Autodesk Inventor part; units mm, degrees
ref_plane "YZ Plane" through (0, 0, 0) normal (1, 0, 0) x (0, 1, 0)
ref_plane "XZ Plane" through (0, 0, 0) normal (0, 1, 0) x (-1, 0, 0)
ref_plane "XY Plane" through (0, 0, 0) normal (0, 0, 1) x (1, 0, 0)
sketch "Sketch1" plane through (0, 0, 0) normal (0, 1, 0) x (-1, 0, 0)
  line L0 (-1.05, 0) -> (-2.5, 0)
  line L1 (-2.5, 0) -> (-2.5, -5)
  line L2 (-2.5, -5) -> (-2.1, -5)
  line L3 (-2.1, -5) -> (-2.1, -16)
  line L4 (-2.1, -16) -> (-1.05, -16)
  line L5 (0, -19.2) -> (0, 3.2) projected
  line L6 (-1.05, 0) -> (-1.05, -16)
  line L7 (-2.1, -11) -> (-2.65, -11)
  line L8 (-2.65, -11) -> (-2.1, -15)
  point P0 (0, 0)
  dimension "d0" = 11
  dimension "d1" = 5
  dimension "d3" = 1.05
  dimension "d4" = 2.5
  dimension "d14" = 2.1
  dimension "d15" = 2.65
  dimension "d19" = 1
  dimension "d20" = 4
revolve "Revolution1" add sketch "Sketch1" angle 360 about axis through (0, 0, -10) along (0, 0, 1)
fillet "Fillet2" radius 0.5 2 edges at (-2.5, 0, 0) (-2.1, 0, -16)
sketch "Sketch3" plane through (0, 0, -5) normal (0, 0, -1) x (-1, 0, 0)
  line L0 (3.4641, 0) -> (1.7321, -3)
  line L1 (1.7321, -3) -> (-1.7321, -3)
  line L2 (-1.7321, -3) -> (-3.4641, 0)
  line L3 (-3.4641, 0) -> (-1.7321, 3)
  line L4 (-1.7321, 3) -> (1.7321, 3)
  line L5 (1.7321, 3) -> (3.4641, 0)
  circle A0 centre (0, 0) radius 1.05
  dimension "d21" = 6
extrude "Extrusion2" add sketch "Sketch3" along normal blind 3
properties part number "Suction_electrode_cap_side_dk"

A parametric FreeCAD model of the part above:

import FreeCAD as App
import Part
import Sketcher
from FreeCAD import Vector
Q = App.Units.Quantity


def edges_at(feature, points):
    """Names of the edges that pass closest to the given points."""
    edges = feature.Shape.Edges
    near = lambda p: min(range(len(edges)), key=lambda i: edges[i].distToShape(Part.Vertex(*p))[0])
    return sorted({f"Edge{near(p) + 1}" for p in points})

doc = App.newDocument("Part")
params = doc.addObject("Spreadsheet::Sheet", "Params")
for row, (alias, value) in enumerate([
    ("sketch1_height", "5 mm"),
    ("sketch1_height2", "1 mm"),
    ("sketch1_width", "1.05 mm"),
    ("revolution_angle", "360 deg"),
    ("fillet_radius", "0.5 mm"),
    ("sketch2_diameter", "2.1 mm"),
    ("pad1_length", "3 mm"),
], start=1):
    params.set(f"A{row}", alias)
    params.set(f"B{row}", "=" + value)
    params.setAlias(f"B{row}", alias)

body = doc.addObject("PartDesign::Body", "Body")

# Sketch on XZ plane
sketch1 = body.newObject("Sketcher::SketchObject", "Sketch")
sketch1.AttachmentSupport = (doc.getObject("XZ_Plane"), [""])
sketch1.MapMode = "FlatFace"
sketch1.addGeometry([
    Part.LineSegment(Vector(1.05, -16, 0), Vector(1.05, 0, 0)),  # 0
    Part.LineSegment(Vector(1.05, 0, 0), Vector(2.5, 0, 0)),  # 1
    Part.LineSegment(Vector(2.5, 0, 0), Vector(2.5, -5, 0)),  # 2
    Part.LineSegment(Vector(2.5, -5, 0), Vector(2.1, -5, 0)),  # 3
    Part.LineSegment(Vector(2.1, -5, 0), Vector(2.1, -11, 0)),  # 4
    Part.LineSegment(Vector(2.1, -11, 0), Vector(2.65, -11, 0)),  # 5
    Part.LineSegment(Vector(2.65, -11, 0), Vector(2.1, -15, 0)),  # 6
    Part.LineSegment(Vector(2.1, -15, 0), Vector(2.1, -16, 0)),  # 7
    Part.LineSegment(Vector(2.1, -16, 0), Vector(1.05, -16, 0)),  # 8
], False)
sketch1.addConstraint([
    Sketcher.Constraint("Coincident", 0, 2, 1, 1),
    Sketcher.Constraint("Coincident", 1, 2, 2, 1),
    Sketcher.Constraint("Coincident", 2, 2, 3, 1),
    Sketcher.Constraint("Coincident", 3, 2, 4, 1),
    Sketcher.Constraint("Coincident", 4, 2, 5, 1),
    Sketcher.Constraint("Coincident", 5, 2, 6, 1),
    Sketcher.Constraint("Coincident", 6, 2, 7, 1),
    Sketcher.Constraint("Coincident", 7, 2, 8, 1),
    Sketcher.Constraint("Coincident", 8, 2, 0, 1),
    Sketcher.Constraint("Vertical", 0),
    Sketcher.Constraint("Horizontal", 1),
    Sketcher.Constraint("Vertical", 2),
    Sketcher.Constraint("Horizontal", 3),
    Sketcher.Constraint("Vertical", 4),
    Sketcher.Constraint("Horizontal", 5),
    Sketcher.Constraint("Vertical", 7),
    Sketcher.Constraint("Horizontal", 8),
    Sketcher.Constraint("PointOnObject", 0, 2, -1),
    Sketcher.Constraint("Vertical", 4, 2, 6, 2),
    Sketcher.Constraint("DistanceY", 2, 2, 2, 1, 5.0),
    Sketcher.Constraint("DistanceY", 7, 2, 7, 1, 1.0),
    Sketcher.Constraint("DistanceY", 4, 2, -1, 1, 11.0),
    Sketcher.Constraint("DistanceY", 6, 2, 4, 2, 4.0),
    Sketcher.Constraint("DistanceX", 8, 2, 8, 1, 1.05),
    Sketcher.Constraint("DistanceX", -1, 1, 1, 2, 2.5),
    Sketcher.Constraint("DistanceX", -1, 1, 3, 2, 2.1),
    Sketcher.Constraint("DistanceX", -1, 1, 5, 2, 2.65),
])
sketch1.setExpression("Constraints[19]", "Params.sketch1_height")
sketch1.setExpression("Constraints[20]", "Params.sketch1_height2")
sketch1.setExpression("Constraints[23]", "Params.sketch1_width")
revolution = body.newObject("PartDesign::Revolution", "Revolution")
revolution.Profile = sketch1
revolution.ReferenceAxis = (sketch1, ["V_Axis"])
revolution.setExpression("Angle", "Params.revolution_angle")
doc.recompute()

fillet = body.newObject("PartDesign::Fillet", "Fillet")
fillet.Base = (revolution, edges_at(revolution, [(-2.5, 0, 0), (-2.1, 0, -16)]))
fillet.setExpression("Radius", "Params.fillet_radius")

# Sketch on XY plane
sketch2 = body.newObject("Sketcher::SketchObject", "Sketch001")
sketch2.AttachmentSupport = (doc.getObject("XY_Plane"), [""])
sketch2.MapMode = "FlatFace"
sketch2.AttachmentOffset = App.Placement(Vector(0, 0, -5), App.Rotation())
sketch2.addGeometry([
    Part.LineSegment(Vector(-1.7, -3, 0), Vector(-3.5, 0, 0)),  # 0
    Part.LineSegment(Vector(-3.5, 0, 0), Vector(-1.7, 3, 0)),  # 1
    Part.LineSegment(Vector(-1.7, 3, 0), Vector(1.7, 3, 0)),  # 2
    Part.LineSegment(Vector(1.7, 3, 0), Vector(3.5, 0, 0)),  # 3
    Part.LineSegment(Vector(3.5, 0, 0), Vector(1.7, -3, 0)),  # 4
    Part.LineSegment(Vector(1.7, -3, 0), Vector(-1.7, -3, 0)),  # 5
    Part.Circle(Vector(0, 0, 0), Vector(0, 0, 1), 1.1),  # 6
], False)
sketch2.addConstraint([
    Sketcher.Constraint("Coincident", 0, 2, 1, 1),
    Sketcher.Constraint("Coincident", 1, 2, 2, 1),
    Sketcher.Constraint("Coincident", 2, 2, 3, 1),
    Sketcher.Constraint("Coincident", 3, 2, 4, 1),
    Sketcher.Constraint("Coincident", 4, 2, 5, 1),
    Sketcher.Constraint("Coincident", 5, 2, 0, 1),
    Sketcher.Constraint("Horizontal", 2),
    Sketcher.Constraint("Horizontal", 5),
    Sketcher.Constraint("Coincident", 6, 3, -1, 1),
    Sketcher.Constraint("Symmetric", 0, 2, 3, 2, -1, 1),
    Sketcher.Constraint("Symmetric", 1, 2, 4, 2, -1, 1),
    Sketcher.Constraint("PointOnObject", 0, 2, -1),
    Sketcher.Constraint("Parallel", 0, 3),
    Sketcher.Constraint("Vertical", 2, 2, 4, 2),
    Sketcher.Constraint("DistanceY", 4, 2, 2, 2, 6.0),
    Sketcher.Constraint("Diameter", 6, 2.1),
    Sketcher.Constraint("Angle", 0, Q("119.9993 deg")),
    Sketcher.Constraint("DistanceX", 2, 1, 2, 2, 3.4642),
])
sketch2.setExpression("Constraints[15]", "Params.sketch2_diameter")
pad1 = body.newObject("PartDesign::Pad", "Pad")
pad1.Profile = sketch2
pad1.setExpression("Length", "Params.pad1_length")
pad1.Reversed = True

doc.recompute()
